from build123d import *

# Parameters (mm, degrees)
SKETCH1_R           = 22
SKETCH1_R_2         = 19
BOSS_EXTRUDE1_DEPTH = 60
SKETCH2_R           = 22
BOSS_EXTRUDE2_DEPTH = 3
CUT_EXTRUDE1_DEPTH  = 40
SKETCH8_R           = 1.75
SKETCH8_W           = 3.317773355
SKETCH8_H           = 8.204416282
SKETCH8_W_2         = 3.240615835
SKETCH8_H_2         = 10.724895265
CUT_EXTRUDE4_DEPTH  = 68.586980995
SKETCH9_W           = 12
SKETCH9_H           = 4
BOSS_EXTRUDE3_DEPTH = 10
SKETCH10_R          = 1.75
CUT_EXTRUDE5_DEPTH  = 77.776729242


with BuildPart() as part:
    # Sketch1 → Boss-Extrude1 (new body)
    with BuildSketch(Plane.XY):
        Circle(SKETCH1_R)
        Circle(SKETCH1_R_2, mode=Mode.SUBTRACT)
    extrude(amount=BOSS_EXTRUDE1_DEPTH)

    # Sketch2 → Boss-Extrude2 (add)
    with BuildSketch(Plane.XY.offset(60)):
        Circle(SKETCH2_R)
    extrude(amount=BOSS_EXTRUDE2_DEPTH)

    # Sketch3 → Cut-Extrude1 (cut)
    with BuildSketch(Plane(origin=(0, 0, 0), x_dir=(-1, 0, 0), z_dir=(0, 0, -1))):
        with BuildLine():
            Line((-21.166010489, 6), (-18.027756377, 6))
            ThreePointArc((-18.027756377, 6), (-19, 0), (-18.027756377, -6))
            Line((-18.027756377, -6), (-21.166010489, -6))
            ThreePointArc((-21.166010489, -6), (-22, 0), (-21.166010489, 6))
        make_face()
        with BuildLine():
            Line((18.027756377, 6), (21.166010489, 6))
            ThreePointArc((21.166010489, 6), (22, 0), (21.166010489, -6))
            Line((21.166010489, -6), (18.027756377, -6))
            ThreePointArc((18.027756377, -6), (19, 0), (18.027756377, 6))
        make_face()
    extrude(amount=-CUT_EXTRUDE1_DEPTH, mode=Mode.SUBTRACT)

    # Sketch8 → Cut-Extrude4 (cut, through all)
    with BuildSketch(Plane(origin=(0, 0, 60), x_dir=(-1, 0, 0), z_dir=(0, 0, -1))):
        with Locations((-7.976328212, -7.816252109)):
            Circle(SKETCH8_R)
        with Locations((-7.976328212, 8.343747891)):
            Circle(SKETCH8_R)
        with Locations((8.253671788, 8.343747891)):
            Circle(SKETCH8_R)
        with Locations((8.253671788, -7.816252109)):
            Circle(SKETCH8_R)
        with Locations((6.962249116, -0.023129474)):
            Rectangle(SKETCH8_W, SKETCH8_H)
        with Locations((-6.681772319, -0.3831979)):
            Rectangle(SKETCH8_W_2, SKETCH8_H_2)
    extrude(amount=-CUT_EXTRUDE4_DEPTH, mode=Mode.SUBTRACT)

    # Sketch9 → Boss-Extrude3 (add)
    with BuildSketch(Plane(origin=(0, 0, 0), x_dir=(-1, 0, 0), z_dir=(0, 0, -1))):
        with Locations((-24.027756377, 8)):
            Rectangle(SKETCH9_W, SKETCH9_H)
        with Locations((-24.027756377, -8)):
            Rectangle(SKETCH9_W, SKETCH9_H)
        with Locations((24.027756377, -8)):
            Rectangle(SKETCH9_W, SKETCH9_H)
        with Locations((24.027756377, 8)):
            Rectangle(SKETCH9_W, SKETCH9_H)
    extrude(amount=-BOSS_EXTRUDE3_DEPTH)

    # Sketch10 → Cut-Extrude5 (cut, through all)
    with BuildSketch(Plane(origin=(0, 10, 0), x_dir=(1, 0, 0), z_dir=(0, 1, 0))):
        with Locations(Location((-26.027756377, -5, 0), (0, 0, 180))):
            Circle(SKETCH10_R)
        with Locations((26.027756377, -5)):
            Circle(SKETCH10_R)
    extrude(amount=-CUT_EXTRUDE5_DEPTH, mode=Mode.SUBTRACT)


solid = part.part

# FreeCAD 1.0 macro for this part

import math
import FreeCAD as App
import Part
import Sketcher


def add_polygon(sketch, points):
    """Adds a closed chain of lines whose ends are joined by coincident constraints."""
    first, n = sketch.GeometryCount, len(points)
    for a, b in zip(points, points[1:] + points[:1]):
        sketch.addGeometry(Part.LineSegment(App.Vector(*a, 0), App.Vector(*b, 0)), False)
    for i in range(n):
        sketch.addConstraint(Sketcher.Constraint("Coincident", first + i, 2, first + (i + 1) % n, 1))

doc = App.newDocument("Part")
params = doc.addObject("Spreadsheet::Sheet", "Params")
for row, (alias, value) in enumerate([
    ("sketch1_diameter", "44 mm"),
    ("sketch1_diameter2", "38 mm"),
    ("pad1_length", "60 mm"),
    ("sketch2_diameter", "44 mm"),
    ("pad2_length", "3 mm"),
    ("sketch3_radius", "22 mm"),
    ("sketch3_radius2", "19 mm"),
    ("pocket1_length", "40 mm"),
    ("sketch4_diameter", "3.5 mm"),
    ("sketch5_width", "12 mm"),
    ("sketch5_height", "4 mm"),
    ("pad3_length", "10 mm"),
    ("sketch6_diameter", "3.5 mm"),
], start=1):
    params.set(f"A{row}", alias)
    params.set(f"B{row}", "=" + value)
    params.setAlias(f"B{row}", alias)

body = doc.addObject("PartDesign::Body", "Body")

# Sketch on XY plane
sketch1 = doc.addObject("Sketcher::SketchObject", "Sketch")
body.addObject(sketch1)
sketch1.AttachmentSupport = (doc.XY_Plane, [""])
sketch1.MapMode = "FlatFace"
sketch1.addGeometry([
    Part.Circle(App.Vector(0, 0, 0), App.Vector(0, 0, 1), 22),
    Part.Circle(App.Vector(0, 0, 0), App.Vector(0, 0, 1), 19),
], False)
sketch1.addConstraint([
    Sketcher.Constraint("Coincident", 0, 3, -1, 1),
    Sketcher.Constraint("Coincident", 1, 3, -1, 1),
    Sketcher.Constraint("Diameter", 0, 44.0),
    Sketcher.Constraint("Diameter", 1, 38.0),
])
sketch1.setExpression("Constraints[2]", "Params.sketch1_diameter")
sketch1.setExpression("Constraints[3]", "Params.sketch1_diameter2")
pad1 = doc.addObject("PartDesign::Pad", "Pad")
body.addObject(pad1)
pad1.Profile = sketch1
pad1.setExpression("Length", "Params.pad1_length")

# Sketch on XY plane
sketch2 = doc.addObject("Sketcher::SketchObject", "Sketch001")
body.addObject(sketch2)
sketch2.AttachmentSupport = (doc.XY_Plane, [""])
sketch2.MapMode = "FlatFace"
sketch2.AttachmentOffset = App.Placement(App.Vector(0, 0, 60), App.Rotation())
sketch2.addGeometry(Part.Circle(App.Vector(0, 0, 0), App.Vector(0, 0, 1), 22), False)
sketch2.addConstraint([
    Sketcher.Constraint("Coincident", 0, 3, -1, 1),
    Sketcher.Constraint("Diameter", 0, 44.0),
])
sketch2.setExpression("Constraints[1]", "Params.sketch2_diameter")
pad2 = doc.addObject("PartDesign::Pad", "Pad001")
body.addObject(pad2)
pad2.Profile = sketch2
pad2.setExpression("Length", "Params.pad2_length")

# Sketch on XY plane
sketch3 = doc.addObject("Sketcher::SketchObject", "Sketch002")
body.addObject(sketch3)
sketch3.AttachmentSupport = (doc.XY_Plane, [""])
sketch3.MapMode = "FlatFace"
sketch3.addGeometry([
    Part.LineSegment(App.Vector(18.027756, 6, 0), App.Vector(21.16601, 6, 0)),  # 0
    Part.ArcOfCircle(Part.Circle(App.Vector(0, 0, 0), App.Vector(0, 0, 1), 22), math.radians(-15.82662), math.radians(15.82662)),  # 1
    Part.LineSegment(App.Vector(21.16601, -6, 0), App.Vector(18.027756, -6, 0)),  # 2
    Part.ArcOfCircle(Part.Circle(App.Vector(0, 0, 0), App.Vector(0, 0, 1), 19), math.radians(-18.40848), math.radians(18.40848)),  # 3
    Part.LineSegment(App.Vector(-21.16601, 6, 0), App.Vector(-18.027756, 6, 0)),  # 4
    Part.ArcOfCircle(Part.Circle(App.Vector(0, 0, 0), App.Vector(0, 0, 1), 19), math.radians(161.59152), math.radians(198.40848)),  # 5
    Part.LineSegment(App.Vector(-18.027756, -6, 0), App.Vector(-21.16601, -6, 0)),  # 6
    Part.ArcOfCircle(Part.Circle(App.Vector(0, 0, 0), App.Vector(0, 0, 1), 22), math.radians(164.17338), math.radians(195.82662)),  # 7
], False)
sketch3.addConstraint([
    Sketcher.Constraint("Coincident", 0, 2, 1, 2),
    Sketcher.Constraint("Coincident", 1, 1, 2, 1),
    Sketcher.Constraint("Coincident", 2, 2, 3, 1),
    Sketcher.Constraint("Coincident", 3, 2, 0, 1),
    Sketcher.Constraint("Coincident", 4, 2, 5, 1),
    Sketcher.Constraint("Coincident", 5, 2, 6, 1),
    Sketcher.Constraint("Coincident", 6, 2, 7, 2),
    Sketcher.Constraint("Coincident", 7, 1, 4, 1),
    Sketcher.Constraint("Horizontal", 0),
    Sketcher.Constraint("Horizontal", 2),
    Sketcher.Constraint("Horizontal", 4),
    Sketcher.Constraint("Horizontal", 6),
    Sketcher.Constraint("Coincident", 1, 3, -1, 1),
    Sketcher.Constraint("Coincident", 3, 3, -1, 1),
    Sketcher.Constraint("Coincident", 5, 3, -1, 1),
    Sketcher.Constraint("Coincident", 7, 3, -1, 1),
    Sketcher.Constraint("Equal", 3, 5),
    Sketcher.Constraint("Equal", 1, 7),
    Sketcher.Constraint("Horizontal", 3, 2, 4, 2),
    Sketcher.Constraint("Horizontal", 2, 2, 5, 2),
    Sketcher.Constraint("Vertical", 0, 2, 1, 1),
    Sketcher.Constraint("Radius", 1, 22.0),
    Sketcher.Constraint("Radius", 3, 19.0),
    Sketcher.Constraint("DistanceY", -1, 1, 0, 2, 6.0),
])
sketch3.setExpression("Constraints[21]", "Params.sketch3_radius")
sketch3.setExpression("Constraints[22]", "Params.sketch3_radius2")
pocket1 = doc.addObject("PartDesign::Pocket", "Pocket")
body.addObject(pocket1)
pocket1.Profile = sketch3
pocket1.setExpression("Length", "Params.pocket1_length")
pocket1.Reversed = True

# Sketch on XY plane
sketch4 = doc.addObject("Sketcher::SketchObject", "Sketch003")
body.addObject(sketch4)
sketch4.AttachmentSupport = (doc.XY_Plane, [""])
sketch4.MapMode = "FlatFace"
sketch4.AttachmentOffset = App.Placement(App.Vector(0, 0, 60), App.Rotation())
sketch4.addGeometry(Part.Circle(App.Vector(7.976328, -7.816252, 0), App.Vector(0, 0, 1), 1.75), False)  # 0
sketch4.addGeometry(Part.Circle(App.Vector(7.976328, 8.343748, 0), App.Vector(0, 0, 1), 1.75), False)  # 1
sketch4.addGeometry(Part.Circle(App.Vector(-8.253672, 8.343748, 0), App.Vector(0, 0, 1), 1.75), False)  # 2
sketch4.addGeometry(Part.Circle(App.Vector(-8.253672, -7.816252, 0), App.Vector(0, 0, 1), 1.75), False)  # 3
add_polygon(sketch4, [(-5.303362, 4.079079), (-5.303362, -4.125338), (-8.621136, -4.125338), (-8.621136, 4.079079)])  # lines 4-7
add_polygon(sketch4, [(8.30208, 4.97925), (8.30208, -5.745646), (5.061464, -5.745646), (5.061464, 4.97925)])  # lines 8-11
sketch4.addConstraint([
    Sketcher.Constraint("Vertical", 4),
    Sketcher.Constraint("Horizontal", 5),
    Sketcher.Constraint("Vertical", 6),
    Sketcher.Constraint("Horizontal", 7),
    Sketcher.Constraint("Vertical", 8),
    Sketcher.Constraint("Horizontal", 9),
    Sketcher.Constraint("Vertical", 10),
    Sketcher.Constraint("Horizontal", 11),
    Sketcher.Constraint("Equal", 0, 1),
    Sketcher.Constraint("Equal", 1, 2),
    Sketcher.Constraint("Equal", 2, 3),
    Sketcher.Constraint("Horizontal", 1, 3, 2, 3),
    Sketcher.Constraint("Horizontal", 0, 3, 3, 3),
    Sketcher.Constraint("Vertical", 0, 3, 1, 3),
    Sketcher.Constraint("Vertical", 2, 3, 3, 3),
    Sketcher.Constraint("Diameter", 0, 3.5),
    Sketcher.Constraint("DistanceY", 0, 3, 1, 3, 16.16),
    Sketcher.Constraint("DistanceX", 2, 3, 1, 3, 16.23),
    Sketcher.Constraint("DistanceX", 5, 2, 9, 2, 13.6826),
    Sketcher.Constraint("DistanceY", 10, 2, 1, 3, 3.364498),
    Sketcher.Constraint("DistanceX", 5, 2, 5, 1, 3.317773),
    Sketcher.Constraint("DistanceX", 9, 2, 9, 1, 3.240616),
    Sketcher.Constraint("DistanceY", 4, 2, 4, 1, 8.204416),
    Sketcher.Constraint("DistanceY", 8, 2, 8, 1, 10.724895),
    Sketcher.Constraint("DistanceX", -1, 1, 0, 3, 7.976328),
    Sketcher.Constraint("DistanceY", -1, 1, 6, 2, 4.079079),
    Sketcher.Constraint("DistanceX", -1, 1, 8, 2, 8.30208),
    Sketcher.Constraint("DistanceY", -1, 1, 10, 2, 4.97925),
])
sketch4.setExpression("Constraints[23]", "Params.sketch4_diameter")
pocket2 = doc.addObject("PartDesign::Pocket", "Pocket001")
body.addObject(pocket2)
pocket2.Profile = sketch4
pocket2.Type = "ThroughAll"
pocket2.Reversed = True

# Sketch on XY plane
sketch5 = doc.addObject("Sketcher::SketchObject", "Sketch004")
body.addObject(sketch5)
sketch5.AttachmentSupport = (doc.XY_Plane, [""])
sketch5.MapMode = "FlatFace"
add_polygon(sketch5, [(30.027756, 10), (30.027756, 6), (18.027756, 6), (18.027756, 10)])  # lines 0-3
add_polygon(sketch5, [(30.027756, -6), (30.027756, -10), (18.027756, -10), (18.027756, -6)])  # lines 4-7
add_polygon(sketch5, [(-18.027756, -6), (-18.027756, -10), (-30.027756, -10), (-30.027756, -6)])  # lines 8-11
add_polygon(sketch5, [(-18.027756, 10), (-18.027756, 6), (-30.027756, 6), (-30.027756, 10)])  # lines 12-15
sketch5.addConstraint([
    Sketcher.Constraint("Vertical", 0),
    Sketcher.Constraint("Horizontal", 1),
    Sketcher.Constraint("Vertical", 2),
    Sketcher.Constraint("Horizontal", 3),
    Sketcher.Constraint("Vertical", 4),
    Sketcher.Constraint("Horizontal", 5),
    Sketcher.Constraint("Vertical", 6),
    Sketcher.Constraint("Horizontal", 7),
    Sketcher.Constraint("Vertical", 8),
    Sketcher.Constraint("Horizontal", 9),
    Sketcher.Constraint("Vertical", 10),
    Sketcher.Constraint("Horizontal", 11),
    Sketcher.Constraint("Vertical", 12),
    Sketcher.Constraint("Horizontal", 13),
    Sketcher.Constraint("Vertical", 14),
    Sketcher.Constraint("Horizontal", 15),
    Sketcher.Constraint("Symmetric", 2, 2, 8, 2, -1, 1),
    Sketcher.Constraint("Symmetric", 0, 2, 10, 2, -1, 1),
    Sketcher.Constraint("Symmetric", 6, 2, 12, 2, -1, 1),
    Sketcher.Constraint("Symmetric", 4, 2, 14, 2, -1, 1),
    Sketcher.Constraint("Symmetric", 5, 2, 8, 2, -2),
    Sketcher.Constraint("Symmetric", 7, 2, 10, 2, -2),
    Sketcher.Constraint("DistanceX", 1, 2, 1, 1, 12.0),
    Sketcher.Constraint("DistanceY", 0, 2, 0, 1, 4.0),
    Sketcher.Constraint("DistanceY", -1, 1, 0, 2, 6.0),
    Sketcher.Constraint("DistanceX", -1, 1, 0, 2, 30.027756),
])
sketch5.setExpression("Constraints[38]", "Params.sketch5_width")
sketch5.setExpression("Constraints[39]", "Params.sketch5_height")
pad3 = doc.addObject("PartDesign::Pad", "Pad002")
body.addObject(pad3)
pad3.Profile = sketch5
pad3.setExpression("Length", "Params.pad3_length")

# Sketch on XZ plane
sketch6 = doc.addObject("Sketcher::SketchObject", "Sketch005")
body.addObject(sketch6)
sketch6.AttachmentSupport = (doc.XZ_Plane, [""])
sketch6.MapMode = "FlatFace"
sketch6.AttachmentOffset = App.Placement(App.Vector(0, 0, -10), App.Rotation())
sketch6.addGeometry([
    Part.Circle(App.Vector(-26.027756, 5, 0), App.Vector(0, 0, 1), 1.75),
    Part.Circle(App.Vector(26.027756, 5, 0), App.Vector(0, 0, 1), 1.75),
], False)
sketch6.addConstraint([
    Sketcher.Constraint("Equal", 0, 1),
    Sketcher.Constraint("Symmetric", 0, 3, 1, 3, -2),
    Sketcher.Constraint("Diameter", 0, 3.5),
    Sketcher.Constraint("DistanceY", -1, 1, 0, 3, 5.0),
    Sketcher.Constraint("DistanceX", 0, 3, -1, 1, 26.027756),
])
sketch6.setExpression("Constraints[2]", "Params.sketch6_diameter")
pocket3 = doc.addObject("PartDesign::Pocket", "Pocket002")
body.addObject(pocket3)
pocket3.Profile = sketch6
pocket3.Type = "ThroughAll"
pocket3.Reversed = True

doc.recompute()
